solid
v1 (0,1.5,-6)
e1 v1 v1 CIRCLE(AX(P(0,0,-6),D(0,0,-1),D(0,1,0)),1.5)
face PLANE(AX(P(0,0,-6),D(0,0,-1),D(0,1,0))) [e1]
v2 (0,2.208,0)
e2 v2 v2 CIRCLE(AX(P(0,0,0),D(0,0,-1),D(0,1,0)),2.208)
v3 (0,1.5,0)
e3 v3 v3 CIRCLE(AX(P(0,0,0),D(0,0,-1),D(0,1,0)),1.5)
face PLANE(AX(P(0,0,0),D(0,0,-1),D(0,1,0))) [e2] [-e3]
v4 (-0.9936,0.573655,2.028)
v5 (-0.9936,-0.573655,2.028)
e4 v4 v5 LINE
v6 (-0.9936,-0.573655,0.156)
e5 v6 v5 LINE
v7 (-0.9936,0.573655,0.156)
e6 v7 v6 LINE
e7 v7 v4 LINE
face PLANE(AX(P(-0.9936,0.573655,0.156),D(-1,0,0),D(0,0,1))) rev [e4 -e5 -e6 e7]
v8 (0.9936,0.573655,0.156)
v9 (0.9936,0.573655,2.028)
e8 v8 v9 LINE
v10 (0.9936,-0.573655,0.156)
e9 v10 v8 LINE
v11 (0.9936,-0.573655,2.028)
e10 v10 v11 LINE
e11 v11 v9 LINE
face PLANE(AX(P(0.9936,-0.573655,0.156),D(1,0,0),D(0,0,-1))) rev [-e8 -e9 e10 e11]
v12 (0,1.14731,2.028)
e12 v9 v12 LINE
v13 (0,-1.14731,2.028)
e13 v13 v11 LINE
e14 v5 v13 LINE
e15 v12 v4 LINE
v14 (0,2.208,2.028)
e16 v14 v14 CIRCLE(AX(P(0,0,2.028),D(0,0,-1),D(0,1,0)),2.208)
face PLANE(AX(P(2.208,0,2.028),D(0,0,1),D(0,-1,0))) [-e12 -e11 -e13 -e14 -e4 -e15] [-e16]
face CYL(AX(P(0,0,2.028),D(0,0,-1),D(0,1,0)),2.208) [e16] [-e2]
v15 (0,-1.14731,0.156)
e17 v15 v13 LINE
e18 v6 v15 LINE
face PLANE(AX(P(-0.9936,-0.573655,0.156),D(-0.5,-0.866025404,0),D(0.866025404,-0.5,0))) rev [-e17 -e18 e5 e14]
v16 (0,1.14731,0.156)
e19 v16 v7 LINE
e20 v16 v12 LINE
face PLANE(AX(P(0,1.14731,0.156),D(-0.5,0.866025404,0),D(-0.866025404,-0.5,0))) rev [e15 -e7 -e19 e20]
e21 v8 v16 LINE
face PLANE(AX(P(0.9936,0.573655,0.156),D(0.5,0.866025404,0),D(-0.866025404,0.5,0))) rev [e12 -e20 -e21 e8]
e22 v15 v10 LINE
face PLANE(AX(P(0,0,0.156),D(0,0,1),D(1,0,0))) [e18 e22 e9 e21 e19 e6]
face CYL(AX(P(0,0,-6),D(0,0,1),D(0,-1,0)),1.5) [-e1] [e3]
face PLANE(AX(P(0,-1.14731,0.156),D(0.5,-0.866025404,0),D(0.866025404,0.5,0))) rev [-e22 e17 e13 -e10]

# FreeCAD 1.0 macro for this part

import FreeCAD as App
import Part
import Sketcher
from FreeCAD import Vector
Q = App.Units.Quantity

doc = App.newDocument("Part")
body = doc.addObject("PartDesign::Body", "Body")

# Sketch on XZ plane
sketch1 = body.newObject("Sketcher::SketchObject", "Sketch")
sketch1.AttachmentSupport = (doc.getObject("XZ_Plane"), [""])
sketch1.MapMode = "FlatFace"
sketch1.addGeometry(Part.LineSegment(Vector(0, 2.028, 0), Vector(0, 0, 0)), False)
sketch1.addGeometry(Part.LineSegment(Vector(0, 0, 0), Vector(2.208, 0, 0)), False)
sketch1.addGeometry(Part.LineSegment(Vector(2.208, 0, 0), Vector(2.208, 2.028, 0)), False)
sketch1.addGeometry(Part.LineSegment(Vector(2.208, 2.028, 0), Vector(0, 2.028, 0)), False)
sketch1.addConstraint(Sketcher.Constraint("Coincident", 0, 2, 1, 1))
sketch1.addConstraint(Sketcher.Constraint("Coincident", 1, 2, 2, 1))
sketch1.addConstraint(Sketcher.Constraint("Coincident", 2, 2, 3, 1))
sketch1.addConstraint(Sketcher.Constraint("Coincident", 3, 2, 0, 1))
sketch1.addConstraint(Sketcher.Constraint("Vertical", 0))
sketch1.addConstraint(Sketcher.Constraint("Horizontal", 1))
sketch1.addConstraint(Sketcher.Constraint("Vertical", 2))
sketch1.addConstraint(Sketcher.Constraint("Horizontal", 3))
sketch1.addConstraint(Sketcher.Constraint("Coincident", 0, 2, -1, 1))
sketch1.addConstraint(Sketcher.Constraint("DistanceX", 1, 1, 1, 2, Q("2.208 mm")))
sketch1.addConstraint(Sketcher.Constraint("DistanceY", 0, 2, 0, 1, Q("2.028 mm")))
revolution = body.newObject("PartDesign::Revolution", "Revolution")
revolution.Profile = sketch1
revolution.ReferenceAxis = (sketch1, ["V_Axis"])
revolution.Angle = 360

# Sketch on XY plane
sketch2 = body.newObject("Sketcher::SketchObject", "Sketch001")
sketch2.AttachmentSupport = (doc.getObject("XY_Plane"), [""])
sketch2.MapMode = "FlatFace"
sketch2.addGeometry(Part.Circle(Vector(0, 0, 0), Vector(0, 0, 1), 1.5), False)
sketch2.addConstraint(Sketcher.Constraint("Coincident", 0, 3, -1, 1))
sketch2.addConstraint(Sketcher.Constraint("Diameter", 0, Q("3 mm")))
pad1 = body.newObject("PartDesign::Pad", "Pad")
pad1.Profile = sketch2
pad1.Length = 6
pad1.Reversed = True

# Sketch on XY plane
sketch3 = body.newObject("Sketcher::SketchObject", "Sketch002")
sketch3.AttachmentSupport = (doc.getObject("XY_Plane"), [""])
sketch3.MapMode = "FlatFace"
sketch3.AttachmentOffset = App.Placement(Vector(0, 0, 2.028), App.Rotation())
sketch3.addGeometry(Part.LineSegment(Vector(0.9936, -0.573655, 0), Vector(0.9936, 0.573655, 0)), False)
sketch3.addGeometry(Part.LineSegment(Vector(0.9936, 0.573655, 0), Vector(0, 1.14731, 0)), False)
sketch3.addGeometry(Part.LineSegment(Vector(0, 1.14731, 0), Vector(-0.9936, 0.573655, 0)), False)
sketch3.addGeometry(Part.LineSegment(Vector(-0.9936, 0.573655, 0), Vector(-0.9936, -0.573655, 0)), False)
sketch3.addGeometry(Part.LineSegment(Vector(-0.9936, -0.573655, 0), Vector(0, -1.14731, 0)), False)
sketch3.addGeometry(Part.LineSegment(Vector(0, -1.14731, 0), Vector(0.9936, -0.573655, 0)), False)
sketch3.addConstraint(Sketcher.Constraint("Coincident", 0, 2, 1, 1))
sketch3.addConstraint(Sketcher.Constraint("Coincident", 1, 2, 2, 1))
sketch3.addConstraint(Sketcher.Constraint("Coincident", 2, 2, 3, 1))
sketch3.addConstraint(Sketcher.Constraint("Coincident", 3, 2, 4, 1))
sketch3.addConstraint(Sketcher.Constraint("Coincident", 4, 2, 5, 1))
sketch3.addConstraint(Sketcher.Constraint("Coincident", 5, 2, 0, 1))
sketch3.addConstraint(Sketcher.Constraint("Vertical", 0))
sketch3.addConstraint(Sketcher.Constraint("Vertical", 3))
sketch3.addConstraint(Sketcher.Constraint("Symmetric", 0, 2, 3, 2, -1, 1))
sketch3.addConstraint(Sketcher.Constraint("Symmetric", 1, 2, 4, 2, -1, 1))
sketch3.addConstraint(Sketcher.Constraint("PointOnObject", 1, 2, -2))
sketch3.addConstraint(Sketcher.Constraint("Parallel", 2, 5))
sketch3.addConstraint(Sketcher.Constraint("Horizontal", 0, 2, 2, 2))
sketch3.addConstraint(Sketcher.Constraint("Angle", 1, Q("150 deg")))
sketch3.addConstraint(Sketcher.Constraint("DistanceY", 0, 1, 0, 2, Q("1.14731 mm")))
sketch3.addConstraint(Sketcher.Constraint("DistanceX", -1, 1, 0, 2, Q("0.9936 mm")))
pocket1 = body.newObject("PartDesign::Pocket", "Pocket")
pocket1.Profile = sketch3
pocket1.Length = 1.872

doc.recompute()
